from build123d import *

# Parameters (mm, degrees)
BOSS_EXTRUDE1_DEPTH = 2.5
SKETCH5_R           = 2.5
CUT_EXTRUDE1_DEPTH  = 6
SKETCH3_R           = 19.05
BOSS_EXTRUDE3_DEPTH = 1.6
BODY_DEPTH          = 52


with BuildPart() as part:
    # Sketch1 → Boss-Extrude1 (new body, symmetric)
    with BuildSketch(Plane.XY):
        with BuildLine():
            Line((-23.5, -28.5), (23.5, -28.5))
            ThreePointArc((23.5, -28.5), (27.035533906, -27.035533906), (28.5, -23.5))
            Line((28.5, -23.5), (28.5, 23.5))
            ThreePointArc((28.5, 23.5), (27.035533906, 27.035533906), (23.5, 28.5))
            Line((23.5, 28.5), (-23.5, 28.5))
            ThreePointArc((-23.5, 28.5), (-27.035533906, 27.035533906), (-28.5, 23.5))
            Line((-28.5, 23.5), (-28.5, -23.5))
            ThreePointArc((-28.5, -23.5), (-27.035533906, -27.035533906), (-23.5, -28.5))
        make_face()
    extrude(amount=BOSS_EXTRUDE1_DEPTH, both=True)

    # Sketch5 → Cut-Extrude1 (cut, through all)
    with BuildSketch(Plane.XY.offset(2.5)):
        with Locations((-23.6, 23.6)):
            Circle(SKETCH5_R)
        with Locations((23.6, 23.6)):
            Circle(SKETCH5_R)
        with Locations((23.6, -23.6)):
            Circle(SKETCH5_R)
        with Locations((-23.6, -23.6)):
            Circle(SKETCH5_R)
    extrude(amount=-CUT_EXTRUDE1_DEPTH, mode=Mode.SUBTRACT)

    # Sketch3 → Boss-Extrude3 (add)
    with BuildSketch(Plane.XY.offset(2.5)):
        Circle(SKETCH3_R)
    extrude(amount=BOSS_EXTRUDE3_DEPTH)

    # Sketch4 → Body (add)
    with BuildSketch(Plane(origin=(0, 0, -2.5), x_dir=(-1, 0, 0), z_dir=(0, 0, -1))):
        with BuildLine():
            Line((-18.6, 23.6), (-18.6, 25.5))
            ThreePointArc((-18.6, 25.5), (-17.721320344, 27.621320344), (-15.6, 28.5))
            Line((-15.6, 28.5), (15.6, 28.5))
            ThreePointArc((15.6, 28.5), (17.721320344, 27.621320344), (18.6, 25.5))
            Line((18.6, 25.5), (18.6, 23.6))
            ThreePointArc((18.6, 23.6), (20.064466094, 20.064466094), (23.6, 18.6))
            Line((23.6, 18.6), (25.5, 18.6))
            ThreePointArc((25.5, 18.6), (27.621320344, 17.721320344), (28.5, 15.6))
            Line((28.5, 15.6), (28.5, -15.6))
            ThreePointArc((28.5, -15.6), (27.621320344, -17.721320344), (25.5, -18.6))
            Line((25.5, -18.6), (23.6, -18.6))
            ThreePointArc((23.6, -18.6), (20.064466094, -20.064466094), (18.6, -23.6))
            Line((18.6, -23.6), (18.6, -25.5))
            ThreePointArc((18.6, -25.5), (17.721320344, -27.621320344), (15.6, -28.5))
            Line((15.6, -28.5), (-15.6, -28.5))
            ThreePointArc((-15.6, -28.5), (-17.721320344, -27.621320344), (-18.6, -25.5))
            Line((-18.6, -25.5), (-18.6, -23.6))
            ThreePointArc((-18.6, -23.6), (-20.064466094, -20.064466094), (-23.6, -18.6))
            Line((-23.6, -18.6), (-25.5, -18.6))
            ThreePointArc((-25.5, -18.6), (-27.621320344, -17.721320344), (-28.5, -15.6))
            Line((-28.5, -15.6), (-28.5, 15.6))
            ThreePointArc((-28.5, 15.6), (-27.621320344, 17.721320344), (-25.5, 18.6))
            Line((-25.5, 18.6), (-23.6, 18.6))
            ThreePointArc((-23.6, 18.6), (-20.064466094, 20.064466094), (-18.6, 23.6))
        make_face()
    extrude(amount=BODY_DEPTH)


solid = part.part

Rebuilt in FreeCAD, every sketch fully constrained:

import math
import FreeCAD as App
import Part
import Sketcher

V = App.Vector
Q = App.Units.Quantity

doc = App.newDocument("Part")
body = doc.addObject("PartDesign::Body", "Body")

sketch1 = body.newObject("Sketcher::SketchObject", "Sketch")
sketch1.AttachmentSupport = (doc.getObject("XY_Plane"), [""])
sketch1.MapMode = "FlatFace"
sketch1.addGeometry(Part.LineSegment(V(-23.5, -28.5, 0), V(23.5, -28.5, 0)), False)
sketch1.addGeometry(Part.ArcOfCircle(Part.Circle(V(23.5, -23.5, 0), V(0, 0, 1), 5), math.radians(-90), math.radians(0)), False)
sketch1.addGeometry(Part.LineSegment(V(28.5, -23.5, 0), V(28.5, 23.5, 0)), False)
sketch1.addGeometry(Part.ArcOfCircle(Part.Circle(V(23.5, 23.5, 0), V(0, 0, 1), 5), math.radians(0), math.radians(90)), False)
sketch1.addGeometry(Part.LineSegment(V(23.5, 28.5, 0), V(-23.5, 28.5, 0)), False)
sketch1.addGeometry(Part.ArcOfCircle(Part.Circle(V(-23.5, 23.5, 0), V(0, 0, 1), 5), math.radians(90), math.radians(180)), False)
sketch1.addGeometry(Part.LineSegment(V(-28.5, 23.5, 0), V(-28.5, -23.5, 0)), False)
sketch1.addGeometry(Part.ArcOfCircle(Part.Circle(V(-23.5, -23.5, 0), V(0, 0, 1), 5), math.radians(180), math.radians(270)), False)
sketch1.addConstraint(Sketcher.Constraint("Tangent", 0, 2, 1, 1))
sketch1.addConstraint(Sketcher.Constraint("Tangent", 1, 2, 2, 1))
sketch1.addConstraint(Sketcher.Constraint("Tangent", 2, 2, 3, 1))
sketch1.addConstraint(Sketcher.Constraint("Tangent", 3, 2, 4, 1))
sketch1.addConstraint(Sketcher.Constraint("Tangent", 4, 2, 5, 1))
sketch1.addConstraint(Sketcher.Constraint("Tangent", 5, 2, 6, 1))
sketch1.addConstraint(Sketcher.Constraint("Tangent", 6, 2, 7, 1))
sketch1.addConstraint(Sketcher.Constraint("Tangent", 7, 2, 0, 1))
sketch1.addConstraint(Sketcher.Constraint("Horizontal", 0))
sketch1.addConstraint(Sketcher.Constraint("Vertical", 2))
sketch1.addConstraint(Sketcher.Constraint("Horizontal", 4))
sketch1.addConstraint(Sketcher.Constraint("Vertical", 6))
sketch1.addConstraint(Sketcher.Constraint("Equal", 1, 3))
sketch1.addConstraint(Sketcher.Constraint("Equal", 3, 5))
sketch1.addConstraint(Sketcher.Constraint("Equal", 5, 7))
sketch1.addConstraint(Sketcher.Constraint("Symmetric", 1, 3, 5, 3, -1, 1))
sketch1.addConstraint(Sketcher.Constraint("Equal", 4, 2))
sketch1.addConstraint(Sketcher.Constraint("Radius", 1, Q("5 mm")))
sketch1.addConstraint(Sketcher.Constraint("DistanceX", 0, 1, 0, 2, Q("47 mm")))
pad1 = body.newObject("PartDesign::Pad", "Pad")
pad1.Profile = sketch1
pad1.Length = 5
pad1.Midplane = True

sketch2 = body.newObject("Sketcher::SketchObject", "Sketch001")
sketch2.AttachmentSupport = (doc.getObject("XY_Plane"), [""])
sketch2.MapMode = "FlatFace"
sketch2.AttachmentOffset = App.Placement(V(0, 0, 2.5), App.Rotation())
sketch2.addGeometry(Part.Circle(V(-23.6, 23.6, 0), V(0, 0, 1), 2.5), False)
sketch2.addGeometry(Part.Circle(V(23.6, 23.6, 0), V(0, 0, 1), 2.5), False)
sketch2.addGeometry(Part.Circle(V(23.6, -23.6, 0), V(0, 0, 1), 2.5), False)
sketch2.addGeometry(Part.Circle(V(-23.6, -23.6, 0), V(0, 0, 1), 2.5), False)
sketch2.addConstraint(Sketcher.Constraint("Equal", 0, 1))
sketch2.addConstraint(Sketcher.Constraint("Equal", 1, 2))
sketch2.addConstraint(Sketcher.Constraint("Equal", 2, 3))
sketch2.addConstraint(Sketcher.Constraint("Symmetric", 0, 3, 2, 3, -1, 1))
sketch2.addConstraint(Sketcher.Constraint("Symmetric", 1, 3, 3, 3, -1, 1))
sketch2.addConstraint(Sketcher.Constraint("Symmetric", 0, 3, 1, 3, -2))
sketch2.addConstraint(Sketcher.Constraint("Diameter", 0, Q("5 mm")))
sketch2.addConstraint(Sketcher.Constraint("DistanceX", 0, 3, -1, 1, Q("23.6 mm")))
sketch2.addConstraint(Sketcher.Constraint("DistanceY", -1, 1, 0, 3, Q("23.6 mm")))
pocket1 = body.newObject("PartDesign::Pocket", "Pocket")
pocket1.Profile = sketch2
pocket1.Type = "ThroughAll"

sketch3 = body.newObject("Sketcher::SketchObject", "Sketch002")
sketch3.AttachmentSupport = (doc.getObject("XY_Plane"), [""])
sketch3.MapMode = "FlatFace"
sketch3.AttachmentOffset = App.Placement(V(0, 0, 2.5), App.Rotation())
sketch3.addGeometry(Part.Circle(V(0, 0, 0), V(0, 0, 1), 19.05), False)
sketch3.addConstraint(Sketcher.Constraint("Coincident", 0, 3, -1, 1))
sketch3.addConstraint(Sketcher.Constraint("Diameter", 0, Q("38.1 mm")))
pad2 = body.newObject("PartDesign::Pad", "Pad001")
pad2.Profile = sketch3
pad2.Length = 1.6

sketch4 = body.newObject("Sketcher::SketchObject", "Sketch003")
sketch4.AttachmentSupport = (doc.getObject("XY_Plane"), [""])
sketch4.MapMode = "FlatFace"
sketch4.AttachmentOffset = App.Placement(V(0, 0, -2.5), App.Rotation())
sketch4.addGeometry(Part.LineSegment(V(18.6, 25.5, 0), V(18.6, 23.6, 0)), False)
sketch4.addGeometry(Part.ArcOfCircle(Part.Circle(V(23.6, 23.6, 0), V(0, 0, 1), 5), math.radians(180), math.radians(270)), False)
sketch4.addGeometry(Part.LineSegment(V(23.6, 18.6, 0), V(25.5, 18.6, 0)), False)
sketch4.addGeometry(Part.ArcOfCircle(Part.Circle(V(25.5, 15.6, 0), V(0, 0, 1), 3), math.radians(0), math.radians(90)), False)
sketch4.addGeometry(Part.LineSegment(V(28.5, 15.6, 0), V(28.5, -15.6, 0)), False)
sketch4.addGeometry(Part.ArcOfCircle(Part.Circle(V(25.5, -15.6, 0), V(0, 0, 1), 3), math.radians(-90), math.radians(0)), False)
sketch4.addGeometry(Part.LineSegment(V(25.5, -18.6, 0), V(23.6, -18.6, 0)), False)
sketch4.addGeometry(Part.ArcOfCircle(Part.Circle(V(23.6, -23.6, 0), V(0, 0, 1), 5), math.radians(90), math.radians(180)), False)
sketch4.addGeometry(Part.LineSegment(V(18.6, -23.6, 0), V(18.6, -25.5, 0)), False)
sketch4.addGeometry(Part.ArcOfCircle(Part.Circle(V(15.6, -25.5, 0), V(0, 0, 1), 3), math.radians(-90), math.radians(0)), False)
sketch4.addGeometry(Part.LineSegment(V(15.6, -28.5, 0), V(-15.6, -28.5, 0)), False)
sketch4.addGeometry(Part.ArcOfCircle(Part.Circle(V(-15.6, -25.5, 0), V(0, 0, 1), 3), math.radians(180), math.radians(270)), False)
sketch4.addGeometry(Part.LineSegment(V(-18.6, -25.5, 0), V(-18.6, -23.6, 0)), False)
sketch4.addGeometry(Part.ArcOfCircle(Part.Circle(V(-23.6, -23.6, 0), V(0, 0, 1), 5), math.radians(0), math.radians(90)), False)
sketch4.addGeometry(Part.LineSegment(V(-23.6, -18.6, 0), V(-25.5, -18.6, 0)), False)
sketch4.addGeometry(Part.ArcOfCircle(Part.Circle(V(-25.5, -15.6, 0), V(0, 0, 1), 3), math.radians(180), math.radians(270)), False)
sketch4.addGeometry(Part.LineSegment(V(-28.5, -15.6, 0), V(-28.5, 15.6, 0)), False)
sketch4.addGeometry(Part.ArcOfCircle(Part.Circle(V(-25.5, 15.6, 0), V(0, 0, 1), 3), math.radians(90), math.radians(180)), False)
sketch4.addGeometry(Part.LineSegment(V(-25.5, 18.6, 0), V(-23.6, 18.6, 0)), False)
sketch4.addGeometry(Part.ArcOfCircle(Part.Circle(V(-23.6, 23.6, 0), V(0, 0, 1), 5), math.radians(-90), math.radians(0)), False)
sketch4.addGeometry(Part.LineSegment(V(-18.6, 23.6, 0), V(-18.6, 25.5, 0)), False)
sketch4.addGeometry(Part.ArcOfCircle(Part.Circle(V(-15.6, 25.5, 0), V(0, 0, 1), 3), math.radians(90), math.radians(180)), False)
sketch4.addGeometry(Part.LineSegment(V(-15.6, 28.5, 0), V(15.6, 28.5, 0)), False)
sketch4.addGeometry(Part.ArcOfCircle(Part.Circle(V(15.6, 25.5, 0), V(0, 0, 1), 3), math.radians(0), math.radians(90)), False)
sketch4.addConstraint(Sketcher.Constraint("Tangent", 0, 2, 1, 1))
sketch4.addConstraint(Sketcher.Constraint("Tangent", 1, 2, 2, 1))
sketch4.addConstraint(Sketcher.Constraint("Tangent", 2, 2, 3, 2))
sketch4.addConstraint(Sketcher.Constraint("Tangent", 3, 1, 4, 1))
sketch4.addConstraint(Sketcher.Constraint("Tangent", 4, 2, 5, 2))
sketch4.addConstraint(Sketcher.Constraint("Tangent", 5, 1, 6, 1))
sketch4.addConstraint(Sketcher.Constraint("Tangent", 6, 2, 7, 1))
sketch4.addConstraint(Sketcher.Constraint("Tangent", 7, 2, 8, 1))
sketch4.addConstraint(Sketcher.Constraint("Tangent", 8, 2, 9, 2))
sketch4.addConstraint(Sketcher.Constraint("Tangent", 9, 1, 10, 1))
sketch4.addConstraint(Sketcher.Constraint("Tangent", 10, 2, 11, 2))
sketch4.addConstraint(Sketcher.Constraint("Tangent", 11, 1, 12, 1))
sketch4.addConstraint(Sketcher.Constraint("Tangent", 12, 2, 13, 1))
sketch4.addConstraint(Sketcher.Constraint("Tangent", 13, 2, 14, 1))
sketch4.addConstraint(Sketcher.Constraint("Tangent", 14, 2, 15, 2))
sketch4.addConstraint(Sketcher.Constraint("Tangent", 15, 1, 16, 1))
sketch4.addConstraint(Sketcher.Constraint("Tangent", 16, 2, 17, 2))
sketch4.addConstraint(Sketcher.Constraint("Tangent", 17, 1, 18, 1))
sketch4.addConstraint(Sketcher.Constraint("Tangent", 18, 2, 19, 1))
sketch4.addConstraint(Sketcher.Constraint("Tangent", 19, 2, 20, 1))
sketch4.addConstraint(Sketcher.Constraint("Tangent", 20, 2, 21, 2))
sketch4.addConstraint(Sketcher.Constraint("Tangent", 21, 1, 22, 1))
sketch4.addConstraint(Sketcher.Constraint("Tangent", 22, 2, 23, 2))
sketch4.addConstraint(Sketcher.Constraint("Tangent", 23, 1, 0, 1))
sketch4.addConstraint(Sketcher.Constraint("Vertical", 0))
sketch4.addConstraint(Sketcher.Constraint("Horizontal", 2))
sketch4.addConstraint(Sketcher.Constraint("Vertical", 4))
sketch4.addConstraint(Sketcher.Constraint("Horizontal", 6))
sketch4.addConstraint(Sketcher.Constraint("Vertical", 8))
sketch4.addConstraint(Sketcher.Constraint("Horizontal", 10))
sketch4.addConstraint(Sketcher.Constraint("Vertical", 12))
sketch4.addConstraint(Sketcher.Constraint("Horizontal", 14))
sketch4.addConstraint(Sketcher.Constraint("Vertical", 16))
sketch4.addConstraint(Sketcher.Constraint("Horizontal", 18))
sketch4.addConstraint(Sketcher.Constraint("Vertical", 20))
sketch4.addConstraint(Sketcher.Constraint("Horizontal", 22))
sketch4.addConstraint(Sketcher.Constraint("Equal", 3, 5))
sketch4.addConstraint(Sketcher.Constraint("Equal", 1, 7))
sketch4.addConstraint(Sketcher.Constraint("Equal", 5, 9))
sketch4.addConstraint(Sketcher.Constraint("Equal", 9, 11))
sketch4.addConstraint(Sketcher.Constraint("Equal", 7, 13))
sketch4.addConstraint(Sketcher.Constraint("Equal", 11, 15))
sketch4.addConstraint(Sketcher.Constraint("Equal", 15, 17))
sketch4.addConstraint(Sketcher.Constraint("Equal", 13, 19))
sketch4.addConstraint(Sketcher.Constraint("Equal", 17, 21))
sketch4.addConstraint(Sketcher.Constraint("Equal", 21, 23))
sketch4.addConstraint(Sketcher.Constraint("Symmetric", 1, 3, 13, 3, -1, 1))
sketch4.addConstraint(Sketcher.Constraint("Symmetric", 5, 3, 17, 3, -1, 1))
sketch4.addConstraint(Sketcher.Constraint("Symmetric", 9, 3, 21, 3, -1, 1))
sketch4.addConstraint(Sketcher.Constraint("Symmetric", 7, 3, 13, 3, -2))
sketch4.addConstraint(Sketcher.Constraint("Equal", 18, 0))
sketch4.addConstraint(Sketcher.Constraint("Equal", 22, 4))
sketch4.addConstraint(Sketcher.Constraint("Radius", 1, Q("5 mm")))
sketch4.addConstraint(Sketcher.Constraint("Radius", 3, Q("3 mm")))
sketch4.addConstraint(Sketcher.Constraint("DistanceX", 2, 1, 2, 2, Q("1.9 mm")))
sketch4.addConstraint(Sketcher.Constraint("DistanceX", 10, 2, 10, 1, Q("31.2 mm")))
pad3 = body.newObject("PartDesign::Pad", "Pad002")
pad3.Profile = sketch4
pad3.Length = 52
pad3.Reversed = True

doc.recompute()
